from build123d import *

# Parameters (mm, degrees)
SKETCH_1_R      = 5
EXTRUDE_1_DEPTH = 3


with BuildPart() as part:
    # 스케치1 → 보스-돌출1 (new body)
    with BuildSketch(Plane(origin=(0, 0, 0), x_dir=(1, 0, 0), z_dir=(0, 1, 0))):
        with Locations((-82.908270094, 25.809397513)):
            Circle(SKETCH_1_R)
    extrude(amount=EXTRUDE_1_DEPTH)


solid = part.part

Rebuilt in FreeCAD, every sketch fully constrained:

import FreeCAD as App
import Part
import Sketcher
from FreeCAD import Vector

doc = App.newDocument("Part")
params = doc.addObject("Spreadsheet::Sheet", "Params")
for row, (alias, value) in enumerate([
    ("sketch1_diameter", "10 mm"),
    ("pad1_length", "3 mm"),
], start=1):
    params.set(f"A{row}", alias)
    params.set(f"B{row}", "=" + value)
    params.setAlias(f"B{row}", alias)

body = doc.addObject("PartDesign::Body", "Body")

# Sketch on XZ plane
sketch1 = body.newObject("Sketcher::SketchObject", "Sketch")
sketch1.AttachmentSupport = (doc.getObject("XZ_Plane"), [""])
sketch1.MapMode = "FlatFace"
sketch1.addGeometry(Part.Circle(Vector(-83, -26, 0), Vector(0, 0, 1), 5), False)
sketch1.addConstraint(Sketcher.Constraint("Diameter", 0, 10.0))
sketch1.addConstraint(Sketcher.Constraint("DistanceX", 0, 3, -1, 1, 82.90827))
sketch1.addConstraint(Sketcher.Constraint("DistanceY", 0, 3, -1, 1, 25.809398))
sketch1.setExpression("Constraints[0]", "Params.sketch1_diameter")
pad1 = body.newObject("PartDesign::Pad", "Pad")
pad1.Profile = sketch1
pad1.setExpression("Length", "Params.pad1_length")
pad1.Reversed = True

doc.recompute()
